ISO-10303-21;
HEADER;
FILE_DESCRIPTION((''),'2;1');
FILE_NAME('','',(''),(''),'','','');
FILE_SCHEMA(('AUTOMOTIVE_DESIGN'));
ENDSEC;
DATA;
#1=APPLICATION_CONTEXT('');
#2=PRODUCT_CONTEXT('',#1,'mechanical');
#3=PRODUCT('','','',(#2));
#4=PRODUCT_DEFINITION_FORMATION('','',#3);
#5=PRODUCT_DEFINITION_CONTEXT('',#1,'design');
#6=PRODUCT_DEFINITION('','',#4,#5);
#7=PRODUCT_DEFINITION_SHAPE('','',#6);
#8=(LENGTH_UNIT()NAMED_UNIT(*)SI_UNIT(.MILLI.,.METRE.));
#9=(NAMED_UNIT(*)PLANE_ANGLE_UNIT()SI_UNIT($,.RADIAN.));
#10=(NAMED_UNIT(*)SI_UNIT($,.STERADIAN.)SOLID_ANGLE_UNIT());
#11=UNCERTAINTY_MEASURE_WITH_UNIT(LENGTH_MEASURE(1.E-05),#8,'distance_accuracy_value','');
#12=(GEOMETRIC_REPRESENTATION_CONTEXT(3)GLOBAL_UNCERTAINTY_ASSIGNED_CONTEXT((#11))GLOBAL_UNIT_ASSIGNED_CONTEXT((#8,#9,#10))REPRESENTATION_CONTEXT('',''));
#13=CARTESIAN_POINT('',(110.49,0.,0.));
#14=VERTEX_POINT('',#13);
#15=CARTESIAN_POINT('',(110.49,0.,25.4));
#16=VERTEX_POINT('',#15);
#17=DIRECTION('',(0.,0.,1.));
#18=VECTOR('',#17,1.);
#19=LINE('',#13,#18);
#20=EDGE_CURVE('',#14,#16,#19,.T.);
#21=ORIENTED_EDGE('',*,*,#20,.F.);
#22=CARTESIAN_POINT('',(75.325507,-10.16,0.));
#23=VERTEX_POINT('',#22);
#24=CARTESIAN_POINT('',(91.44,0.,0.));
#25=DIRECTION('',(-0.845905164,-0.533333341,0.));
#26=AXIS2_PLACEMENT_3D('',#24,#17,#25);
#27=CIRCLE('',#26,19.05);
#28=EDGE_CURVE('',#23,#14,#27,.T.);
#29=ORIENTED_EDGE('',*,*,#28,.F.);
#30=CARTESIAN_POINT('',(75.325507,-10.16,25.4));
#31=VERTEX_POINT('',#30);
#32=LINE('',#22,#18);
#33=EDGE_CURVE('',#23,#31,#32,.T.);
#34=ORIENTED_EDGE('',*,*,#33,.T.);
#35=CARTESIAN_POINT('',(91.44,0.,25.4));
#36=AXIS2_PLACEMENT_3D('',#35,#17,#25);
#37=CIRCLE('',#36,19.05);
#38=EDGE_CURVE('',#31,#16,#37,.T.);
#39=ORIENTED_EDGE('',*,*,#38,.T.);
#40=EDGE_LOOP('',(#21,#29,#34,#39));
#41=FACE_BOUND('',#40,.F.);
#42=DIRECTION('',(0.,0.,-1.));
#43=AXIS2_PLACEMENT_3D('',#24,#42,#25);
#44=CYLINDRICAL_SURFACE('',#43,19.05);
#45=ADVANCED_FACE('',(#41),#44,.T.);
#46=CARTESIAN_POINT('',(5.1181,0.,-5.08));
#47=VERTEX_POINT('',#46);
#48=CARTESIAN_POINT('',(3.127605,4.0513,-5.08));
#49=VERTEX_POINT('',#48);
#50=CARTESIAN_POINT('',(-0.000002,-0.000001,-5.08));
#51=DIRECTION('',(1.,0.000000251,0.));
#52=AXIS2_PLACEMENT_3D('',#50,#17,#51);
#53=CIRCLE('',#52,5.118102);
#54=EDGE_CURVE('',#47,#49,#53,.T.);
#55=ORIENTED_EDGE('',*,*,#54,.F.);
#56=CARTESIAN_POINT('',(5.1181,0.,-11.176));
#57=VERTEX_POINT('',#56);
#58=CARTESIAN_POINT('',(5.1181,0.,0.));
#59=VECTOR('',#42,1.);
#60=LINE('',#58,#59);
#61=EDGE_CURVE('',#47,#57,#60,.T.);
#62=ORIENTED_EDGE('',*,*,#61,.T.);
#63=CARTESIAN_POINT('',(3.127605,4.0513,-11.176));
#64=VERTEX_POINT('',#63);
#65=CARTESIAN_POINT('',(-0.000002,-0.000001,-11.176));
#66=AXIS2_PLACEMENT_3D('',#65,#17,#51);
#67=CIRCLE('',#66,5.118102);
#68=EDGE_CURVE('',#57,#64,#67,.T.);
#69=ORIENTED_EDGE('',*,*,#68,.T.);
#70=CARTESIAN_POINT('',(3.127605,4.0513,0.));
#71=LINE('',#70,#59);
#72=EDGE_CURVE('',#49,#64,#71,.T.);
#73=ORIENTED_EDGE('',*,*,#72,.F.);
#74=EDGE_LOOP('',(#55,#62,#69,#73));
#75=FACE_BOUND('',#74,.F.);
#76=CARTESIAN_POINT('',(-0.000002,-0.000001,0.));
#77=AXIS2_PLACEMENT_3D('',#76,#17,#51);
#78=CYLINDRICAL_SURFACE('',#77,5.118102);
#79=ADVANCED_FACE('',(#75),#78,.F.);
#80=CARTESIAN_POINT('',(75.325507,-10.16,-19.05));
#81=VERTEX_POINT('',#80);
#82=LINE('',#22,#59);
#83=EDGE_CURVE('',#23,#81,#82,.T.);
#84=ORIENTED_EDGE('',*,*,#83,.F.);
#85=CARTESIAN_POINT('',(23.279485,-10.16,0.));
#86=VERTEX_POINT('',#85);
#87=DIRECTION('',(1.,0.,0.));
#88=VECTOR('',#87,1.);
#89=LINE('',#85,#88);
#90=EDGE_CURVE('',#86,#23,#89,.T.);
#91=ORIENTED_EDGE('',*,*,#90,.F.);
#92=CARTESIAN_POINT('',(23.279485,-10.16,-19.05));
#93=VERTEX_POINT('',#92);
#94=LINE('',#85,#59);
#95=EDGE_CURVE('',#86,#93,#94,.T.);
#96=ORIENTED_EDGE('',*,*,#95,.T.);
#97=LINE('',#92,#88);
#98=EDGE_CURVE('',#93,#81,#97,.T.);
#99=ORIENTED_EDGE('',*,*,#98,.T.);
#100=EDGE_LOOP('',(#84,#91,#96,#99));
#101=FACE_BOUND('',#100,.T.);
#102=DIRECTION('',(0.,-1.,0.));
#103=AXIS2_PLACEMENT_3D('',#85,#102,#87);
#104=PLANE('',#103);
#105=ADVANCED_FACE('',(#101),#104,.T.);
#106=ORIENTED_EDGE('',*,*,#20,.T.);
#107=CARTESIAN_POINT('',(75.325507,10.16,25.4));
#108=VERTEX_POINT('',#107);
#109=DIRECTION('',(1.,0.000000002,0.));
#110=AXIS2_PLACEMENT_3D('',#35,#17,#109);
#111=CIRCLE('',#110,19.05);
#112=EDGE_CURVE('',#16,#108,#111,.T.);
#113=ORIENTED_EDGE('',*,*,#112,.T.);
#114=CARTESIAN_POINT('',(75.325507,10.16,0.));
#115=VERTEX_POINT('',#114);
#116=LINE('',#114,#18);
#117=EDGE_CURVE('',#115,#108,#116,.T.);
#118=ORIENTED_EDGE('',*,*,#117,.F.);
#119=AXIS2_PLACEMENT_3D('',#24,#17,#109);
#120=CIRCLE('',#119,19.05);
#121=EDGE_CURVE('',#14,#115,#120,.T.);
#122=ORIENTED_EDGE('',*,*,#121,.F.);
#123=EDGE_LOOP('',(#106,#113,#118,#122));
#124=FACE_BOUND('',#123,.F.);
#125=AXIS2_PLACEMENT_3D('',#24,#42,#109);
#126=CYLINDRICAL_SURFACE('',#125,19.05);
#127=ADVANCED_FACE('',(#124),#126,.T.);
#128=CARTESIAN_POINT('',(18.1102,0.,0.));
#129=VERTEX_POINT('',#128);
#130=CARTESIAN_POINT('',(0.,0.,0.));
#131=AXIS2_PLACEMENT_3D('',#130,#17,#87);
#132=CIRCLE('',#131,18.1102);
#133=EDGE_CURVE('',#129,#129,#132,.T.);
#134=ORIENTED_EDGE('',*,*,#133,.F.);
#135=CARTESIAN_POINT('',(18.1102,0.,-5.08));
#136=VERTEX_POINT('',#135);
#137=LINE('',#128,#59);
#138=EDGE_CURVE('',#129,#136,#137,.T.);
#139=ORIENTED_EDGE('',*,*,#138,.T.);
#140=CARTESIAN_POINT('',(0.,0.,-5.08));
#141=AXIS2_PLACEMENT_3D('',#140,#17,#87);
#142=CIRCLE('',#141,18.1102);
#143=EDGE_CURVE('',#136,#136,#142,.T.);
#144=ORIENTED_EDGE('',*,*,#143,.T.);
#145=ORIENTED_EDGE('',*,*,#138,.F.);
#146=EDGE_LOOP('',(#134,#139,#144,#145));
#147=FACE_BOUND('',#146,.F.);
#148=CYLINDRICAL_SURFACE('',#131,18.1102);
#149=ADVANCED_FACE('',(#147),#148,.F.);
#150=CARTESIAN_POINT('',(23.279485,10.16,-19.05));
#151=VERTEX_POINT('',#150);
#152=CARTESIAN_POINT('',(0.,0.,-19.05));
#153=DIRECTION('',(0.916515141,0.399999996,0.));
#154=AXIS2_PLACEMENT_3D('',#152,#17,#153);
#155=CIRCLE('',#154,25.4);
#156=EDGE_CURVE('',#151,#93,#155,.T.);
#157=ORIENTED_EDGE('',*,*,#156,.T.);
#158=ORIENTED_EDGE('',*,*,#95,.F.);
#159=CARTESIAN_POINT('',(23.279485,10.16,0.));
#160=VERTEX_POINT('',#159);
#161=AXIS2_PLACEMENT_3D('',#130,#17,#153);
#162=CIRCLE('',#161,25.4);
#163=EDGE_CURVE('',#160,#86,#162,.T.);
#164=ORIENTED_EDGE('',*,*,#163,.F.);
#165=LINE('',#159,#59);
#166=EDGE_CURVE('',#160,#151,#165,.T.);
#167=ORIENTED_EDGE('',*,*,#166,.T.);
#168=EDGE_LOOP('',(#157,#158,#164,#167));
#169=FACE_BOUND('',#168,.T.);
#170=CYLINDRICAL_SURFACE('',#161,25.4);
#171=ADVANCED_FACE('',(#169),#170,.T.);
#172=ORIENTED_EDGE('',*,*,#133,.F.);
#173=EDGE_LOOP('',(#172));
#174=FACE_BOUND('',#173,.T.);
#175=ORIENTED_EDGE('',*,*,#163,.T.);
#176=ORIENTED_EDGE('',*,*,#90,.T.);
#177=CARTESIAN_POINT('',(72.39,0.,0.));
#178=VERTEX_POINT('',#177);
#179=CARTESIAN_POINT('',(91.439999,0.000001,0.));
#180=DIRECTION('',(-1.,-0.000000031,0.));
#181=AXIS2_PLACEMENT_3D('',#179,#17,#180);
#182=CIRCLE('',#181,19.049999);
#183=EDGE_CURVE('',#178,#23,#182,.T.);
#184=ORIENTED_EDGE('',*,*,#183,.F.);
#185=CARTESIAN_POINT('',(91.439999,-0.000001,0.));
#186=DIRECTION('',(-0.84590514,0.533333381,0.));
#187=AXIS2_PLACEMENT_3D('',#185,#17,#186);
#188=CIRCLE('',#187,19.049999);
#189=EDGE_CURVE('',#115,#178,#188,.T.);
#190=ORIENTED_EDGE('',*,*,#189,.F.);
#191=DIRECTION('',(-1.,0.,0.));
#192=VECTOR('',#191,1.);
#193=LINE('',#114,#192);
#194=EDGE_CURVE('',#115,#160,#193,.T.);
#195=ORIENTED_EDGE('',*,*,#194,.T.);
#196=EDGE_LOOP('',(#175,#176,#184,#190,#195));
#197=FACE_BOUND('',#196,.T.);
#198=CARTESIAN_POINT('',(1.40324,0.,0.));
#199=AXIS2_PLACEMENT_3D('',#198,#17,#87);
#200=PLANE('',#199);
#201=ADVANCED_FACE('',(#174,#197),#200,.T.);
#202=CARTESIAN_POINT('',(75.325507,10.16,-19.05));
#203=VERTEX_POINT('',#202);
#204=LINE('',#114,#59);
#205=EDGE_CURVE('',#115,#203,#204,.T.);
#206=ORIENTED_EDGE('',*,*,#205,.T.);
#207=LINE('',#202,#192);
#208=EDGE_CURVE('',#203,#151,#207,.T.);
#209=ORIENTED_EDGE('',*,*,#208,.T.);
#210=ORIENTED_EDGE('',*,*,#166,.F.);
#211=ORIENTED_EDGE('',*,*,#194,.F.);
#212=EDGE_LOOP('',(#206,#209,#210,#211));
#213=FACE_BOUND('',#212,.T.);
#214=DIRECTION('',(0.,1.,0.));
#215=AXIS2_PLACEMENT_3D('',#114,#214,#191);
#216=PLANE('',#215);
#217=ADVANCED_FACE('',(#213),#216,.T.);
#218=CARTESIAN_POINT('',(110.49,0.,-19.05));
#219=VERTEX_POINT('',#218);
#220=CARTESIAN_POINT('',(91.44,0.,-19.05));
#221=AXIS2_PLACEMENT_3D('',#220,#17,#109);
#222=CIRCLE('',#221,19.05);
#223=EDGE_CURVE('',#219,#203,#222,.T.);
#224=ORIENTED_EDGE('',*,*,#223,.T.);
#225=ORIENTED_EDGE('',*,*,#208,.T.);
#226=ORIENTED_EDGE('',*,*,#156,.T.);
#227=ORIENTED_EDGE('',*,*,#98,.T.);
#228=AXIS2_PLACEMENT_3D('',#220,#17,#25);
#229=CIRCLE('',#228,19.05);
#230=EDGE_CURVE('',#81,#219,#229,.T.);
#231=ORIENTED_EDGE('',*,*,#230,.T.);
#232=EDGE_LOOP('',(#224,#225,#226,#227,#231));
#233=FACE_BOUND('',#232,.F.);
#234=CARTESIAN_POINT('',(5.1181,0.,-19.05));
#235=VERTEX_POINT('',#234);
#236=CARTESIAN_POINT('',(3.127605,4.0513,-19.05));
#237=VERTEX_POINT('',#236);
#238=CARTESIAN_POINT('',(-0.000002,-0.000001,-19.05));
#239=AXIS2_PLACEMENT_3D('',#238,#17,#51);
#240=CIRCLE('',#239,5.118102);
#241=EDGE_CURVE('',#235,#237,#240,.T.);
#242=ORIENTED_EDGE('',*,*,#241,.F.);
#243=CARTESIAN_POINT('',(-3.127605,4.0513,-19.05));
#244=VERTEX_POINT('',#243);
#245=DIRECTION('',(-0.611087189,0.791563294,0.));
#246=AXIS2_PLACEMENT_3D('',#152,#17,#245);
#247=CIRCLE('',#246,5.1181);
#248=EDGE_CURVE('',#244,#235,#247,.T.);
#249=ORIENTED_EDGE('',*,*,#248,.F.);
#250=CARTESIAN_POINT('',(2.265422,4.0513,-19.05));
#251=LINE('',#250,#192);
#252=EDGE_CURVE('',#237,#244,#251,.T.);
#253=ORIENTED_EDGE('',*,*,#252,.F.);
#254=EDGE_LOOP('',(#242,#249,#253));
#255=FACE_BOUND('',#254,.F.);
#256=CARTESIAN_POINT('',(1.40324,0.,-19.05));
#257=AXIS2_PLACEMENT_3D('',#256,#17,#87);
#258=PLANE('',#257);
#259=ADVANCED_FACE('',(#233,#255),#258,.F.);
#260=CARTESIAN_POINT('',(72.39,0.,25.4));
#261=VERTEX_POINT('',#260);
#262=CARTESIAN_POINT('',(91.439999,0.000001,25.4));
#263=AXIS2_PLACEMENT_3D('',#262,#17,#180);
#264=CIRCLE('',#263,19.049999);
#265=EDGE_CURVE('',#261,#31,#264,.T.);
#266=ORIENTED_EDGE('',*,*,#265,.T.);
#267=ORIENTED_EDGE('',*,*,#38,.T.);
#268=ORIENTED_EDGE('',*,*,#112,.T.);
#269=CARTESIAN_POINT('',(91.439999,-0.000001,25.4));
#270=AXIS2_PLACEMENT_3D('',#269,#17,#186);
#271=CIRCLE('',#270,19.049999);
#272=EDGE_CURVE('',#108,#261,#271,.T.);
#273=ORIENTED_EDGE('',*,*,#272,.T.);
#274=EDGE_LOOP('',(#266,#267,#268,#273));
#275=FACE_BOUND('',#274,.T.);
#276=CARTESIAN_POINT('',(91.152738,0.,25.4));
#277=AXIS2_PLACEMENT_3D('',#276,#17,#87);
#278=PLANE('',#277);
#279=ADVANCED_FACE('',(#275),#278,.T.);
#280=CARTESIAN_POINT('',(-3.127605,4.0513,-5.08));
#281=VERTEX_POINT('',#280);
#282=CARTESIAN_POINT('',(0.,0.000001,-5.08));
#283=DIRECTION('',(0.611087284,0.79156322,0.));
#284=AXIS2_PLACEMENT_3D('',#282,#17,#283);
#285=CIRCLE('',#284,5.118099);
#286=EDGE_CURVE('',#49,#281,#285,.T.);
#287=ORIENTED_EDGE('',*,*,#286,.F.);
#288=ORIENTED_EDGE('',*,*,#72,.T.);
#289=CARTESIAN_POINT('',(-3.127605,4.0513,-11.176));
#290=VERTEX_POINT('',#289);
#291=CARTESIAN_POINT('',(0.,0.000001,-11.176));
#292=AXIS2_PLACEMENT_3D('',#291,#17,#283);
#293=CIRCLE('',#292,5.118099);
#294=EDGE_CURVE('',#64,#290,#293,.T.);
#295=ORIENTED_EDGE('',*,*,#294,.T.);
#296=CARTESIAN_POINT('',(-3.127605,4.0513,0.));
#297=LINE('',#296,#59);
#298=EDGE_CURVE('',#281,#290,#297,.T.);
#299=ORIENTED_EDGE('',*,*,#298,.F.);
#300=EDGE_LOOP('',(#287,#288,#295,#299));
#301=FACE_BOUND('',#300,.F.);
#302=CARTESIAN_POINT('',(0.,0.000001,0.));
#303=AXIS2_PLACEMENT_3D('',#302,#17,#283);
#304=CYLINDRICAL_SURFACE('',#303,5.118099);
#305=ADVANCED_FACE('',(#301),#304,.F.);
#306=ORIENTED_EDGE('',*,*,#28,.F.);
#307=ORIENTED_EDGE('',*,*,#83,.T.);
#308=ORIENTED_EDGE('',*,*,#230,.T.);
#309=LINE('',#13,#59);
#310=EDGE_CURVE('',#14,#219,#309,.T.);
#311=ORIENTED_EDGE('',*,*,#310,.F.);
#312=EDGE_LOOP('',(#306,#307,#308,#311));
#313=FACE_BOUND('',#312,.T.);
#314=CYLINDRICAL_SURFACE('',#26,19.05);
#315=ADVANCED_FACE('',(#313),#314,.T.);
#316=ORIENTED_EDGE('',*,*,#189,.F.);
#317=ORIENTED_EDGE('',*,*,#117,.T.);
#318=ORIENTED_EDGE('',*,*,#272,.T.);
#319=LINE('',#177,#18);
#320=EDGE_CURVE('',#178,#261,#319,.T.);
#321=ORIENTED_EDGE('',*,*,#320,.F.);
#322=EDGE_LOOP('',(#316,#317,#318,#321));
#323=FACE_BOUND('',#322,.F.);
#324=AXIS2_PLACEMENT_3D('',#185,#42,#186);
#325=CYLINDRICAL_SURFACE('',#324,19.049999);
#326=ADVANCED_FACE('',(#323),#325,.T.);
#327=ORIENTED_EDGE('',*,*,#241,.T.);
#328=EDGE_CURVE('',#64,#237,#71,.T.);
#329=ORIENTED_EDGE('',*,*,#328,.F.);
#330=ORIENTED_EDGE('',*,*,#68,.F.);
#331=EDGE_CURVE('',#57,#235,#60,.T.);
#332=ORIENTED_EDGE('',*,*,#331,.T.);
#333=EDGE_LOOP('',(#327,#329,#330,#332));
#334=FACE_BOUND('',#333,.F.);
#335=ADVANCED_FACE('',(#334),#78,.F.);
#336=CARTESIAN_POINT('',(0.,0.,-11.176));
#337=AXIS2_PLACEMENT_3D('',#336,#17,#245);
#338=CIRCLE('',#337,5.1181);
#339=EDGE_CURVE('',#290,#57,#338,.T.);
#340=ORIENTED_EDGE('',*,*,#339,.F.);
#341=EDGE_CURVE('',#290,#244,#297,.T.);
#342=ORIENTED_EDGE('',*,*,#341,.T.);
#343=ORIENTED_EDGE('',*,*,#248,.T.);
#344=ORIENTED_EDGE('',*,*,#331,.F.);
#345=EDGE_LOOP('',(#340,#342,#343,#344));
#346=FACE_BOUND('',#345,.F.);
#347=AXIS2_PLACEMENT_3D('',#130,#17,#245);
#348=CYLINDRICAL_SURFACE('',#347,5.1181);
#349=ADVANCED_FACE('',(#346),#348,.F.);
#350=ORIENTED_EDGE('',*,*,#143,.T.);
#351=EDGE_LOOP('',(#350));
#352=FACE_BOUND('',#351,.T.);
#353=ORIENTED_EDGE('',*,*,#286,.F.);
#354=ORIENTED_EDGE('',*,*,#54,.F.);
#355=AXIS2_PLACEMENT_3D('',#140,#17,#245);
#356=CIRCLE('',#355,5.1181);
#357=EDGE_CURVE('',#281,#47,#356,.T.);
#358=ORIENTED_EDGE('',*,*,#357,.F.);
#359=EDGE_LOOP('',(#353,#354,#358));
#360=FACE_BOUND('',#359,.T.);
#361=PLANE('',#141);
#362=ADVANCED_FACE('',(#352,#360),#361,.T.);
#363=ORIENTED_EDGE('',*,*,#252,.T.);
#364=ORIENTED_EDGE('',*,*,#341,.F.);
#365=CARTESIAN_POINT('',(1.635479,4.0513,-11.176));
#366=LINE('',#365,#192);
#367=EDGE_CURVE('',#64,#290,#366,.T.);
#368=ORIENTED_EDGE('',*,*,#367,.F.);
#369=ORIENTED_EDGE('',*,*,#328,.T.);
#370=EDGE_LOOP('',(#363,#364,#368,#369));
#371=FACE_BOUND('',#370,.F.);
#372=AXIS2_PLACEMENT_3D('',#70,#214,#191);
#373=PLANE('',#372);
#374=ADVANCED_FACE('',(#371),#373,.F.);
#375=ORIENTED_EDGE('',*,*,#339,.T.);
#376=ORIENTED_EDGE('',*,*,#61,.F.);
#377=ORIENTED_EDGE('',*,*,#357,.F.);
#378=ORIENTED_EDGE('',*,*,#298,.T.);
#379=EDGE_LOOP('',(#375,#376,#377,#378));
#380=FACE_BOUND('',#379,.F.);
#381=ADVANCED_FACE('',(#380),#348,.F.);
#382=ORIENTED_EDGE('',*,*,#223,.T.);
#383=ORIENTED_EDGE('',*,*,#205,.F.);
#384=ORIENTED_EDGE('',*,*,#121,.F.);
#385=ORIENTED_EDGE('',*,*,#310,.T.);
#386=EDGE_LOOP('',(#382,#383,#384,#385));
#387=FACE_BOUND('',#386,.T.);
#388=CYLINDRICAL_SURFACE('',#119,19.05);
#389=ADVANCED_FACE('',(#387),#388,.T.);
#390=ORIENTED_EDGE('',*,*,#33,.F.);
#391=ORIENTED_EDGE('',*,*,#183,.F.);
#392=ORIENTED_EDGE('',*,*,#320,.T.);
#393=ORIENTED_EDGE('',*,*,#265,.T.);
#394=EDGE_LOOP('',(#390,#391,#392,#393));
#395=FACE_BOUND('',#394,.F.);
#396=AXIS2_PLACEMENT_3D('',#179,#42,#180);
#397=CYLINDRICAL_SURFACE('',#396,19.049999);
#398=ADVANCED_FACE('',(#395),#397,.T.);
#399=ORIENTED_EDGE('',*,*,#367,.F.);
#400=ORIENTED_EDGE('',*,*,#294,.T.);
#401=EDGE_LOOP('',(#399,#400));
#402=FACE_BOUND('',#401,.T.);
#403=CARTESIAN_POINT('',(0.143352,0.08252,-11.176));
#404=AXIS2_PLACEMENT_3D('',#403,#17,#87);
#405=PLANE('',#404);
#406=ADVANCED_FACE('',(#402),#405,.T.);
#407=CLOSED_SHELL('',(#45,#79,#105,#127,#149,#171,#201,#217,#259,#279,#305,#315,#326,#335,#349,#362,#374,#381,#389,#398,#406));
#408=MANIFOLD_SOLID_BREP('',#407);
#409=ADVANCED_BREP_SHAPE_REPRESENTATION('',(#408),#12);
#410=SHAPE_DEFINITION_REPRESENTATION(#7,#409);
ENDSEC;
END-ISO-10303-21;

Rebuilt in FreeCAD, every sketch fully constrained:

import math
import FreeCAD as App
import Part
import Sketcher

V = App.Vector
Q = App.Units.Quantity

doc = App.newDocument("Part")
body = doc.addObject("PartDesign::Body", "Body")

sketch1 = body.newObject("Sketcher::SketchObject", "Sketch")
sketch1.AttachmentSupport = (doc.getObject("XY_Plane"), [""])
sketch1.MapMode = "FlatFace"
sketch1.addGeometry([
    Part.ArcOfCircle(Part.Circle(V(0, 0, 0), V(0, 0, 1), 25.4), math.radians(23.578178), math.radians(336.421822)),
    Part.LineSegment(V(23.279485, -10.16, 0), V(75.325507, -10.16, 0)),
    Part.ArcOfCircle(Part.Circle(V(91.44, 0, 0), V(0, 0, 1), 19.05), math.radians(-147.769047), math.radians(0)),
    Part.ArcOfCircle(Part.Circle(V(91.44, 0, 0), V(0, 0, 1), 19.05), math.radians(0), math.radians(147.769047)),
    Part.LineSegment(V(75.325507, 10.16, 0), V(23.279485, 10.16, 0)),
], False)
sketch1.addConstraint([
    Sketcher.Constraint("Coincident", 0, 2, 1, 1),
    Sketcher.Constraint("Coincident", 1, 2, 2, 1),
    Sketcher.Constraint("Tangent", 2, 2, 3, 1),
    Sketcher.Constraint("Coincident", 3, 2, 4, 1),
    Sketcher.Constraint("Coincident", 4, 2, 0, 1),
    Sketcher.Constraint("Horizontal", 1),
    Sketcher.Constraint("Horizontal", 4),
    Sketcher.Constraint("Coincident", 0, 3, -1, 1),
    Sketcher.Constraint("Equal", 2, 3),
    Sketcher.Constraint("Symmetric", 1, 2, 3, 2, -1),
    Sketcher.Constraint("PointOnObject", 2, 2, -1),
    Sketcher.Constraint("Radius", 0, Q("1 in")),
    Sketcher.Constraint("Radius", 2, Q("0.75 in")),
    Sketcher.Constraint("DistanceX", -1, 1, 2, 3, Q("3.6 in")),
    Sketcher.Constraint("DistanceY", 0, 2, -1, 1, Q("0.4 in")),
])
pad1 = body.newObject("PartDesign::Pad", "Pad")
pad1.Profile = sketch1
pad1.Length = Q("0.75 in")
pad1.Reversed = True

sketch2 = body.newObject("Sketcher::SketchObject", "Sketch001")
sketch2.AttachmentSupport = (doc.getObject("XY_Plane"), [""])
sketch2.MapMode = "FlatFace"
sketch2.addGeometry([
    Part.ArcOfCircle(Part.Circle(V(91.439999, -0.000001, 0), V(0, 0, 1), 19.049999), math.radians(147.769044), math.radians(179.999998)),
    Part.ArcOfCircle(Part.Circle(V(91.439999, 0.000001, 0), V(0, 0, 1), 19.049999), math.radians(-179.999998), math.radians(-147.769044)),
    Part.ArcOfCircle(Part.Circle(V(91.44, 0, 0), V(0, 0, 1), 19.05), math.radians(-147.769047), math.radians(0)),
    Part.ArcOfCircle(Part.Circle(V(91.44, 0, 0), V(0, 0, 1), 19.05), math.radians(0), math.radians(147.769047)),
], False)
sketch2.addConstraint([
    Sketcher.Constraint("Tangent", 0, 2, 1, 1),
    Sketcher.Constraint("Tangent", 1, 2, 2, 1),
    Sketcher.Constraint("Tangent", 2, 2, 3, 1),
    Sketcher.Constraint("Tangent", 3, 2, 0, 1),
    Sketcher.Constraint("Equal", 0, 1),
    Sketcher.Constraint("Symmetric", 1, 2, 3, 2, -1),
    Sketcher.Constraint("PointOnObject", 0, 2, -1),
    Sketcher.Constraint("PointOnObject", 2, 2, -1),
    Sketcher.Constraint("Radius", 0, Q("0.75 in")),
    Sketcher.Constraint("DistanceX", -1, 1, 0, 3, Q("3.6 in")),
    Sketcher.Constraint("DistanceY", 1, 2, -1, 1, Q("0.4 in")),
])
pad2 = body.newObject("PartDesign::Pad", "Pad001")
pad2.Profile = sketch2
pad2.Length = Q("1 in")

sketch3 = body.newObject("Sketcher::SketchObject", "Sketch002")
sketch3.AttachmentSupport = (doc.getObject("XY_Plane"), [""])
sketch3.MapMode = "FlatFace"
sketch3.addGeometry(Part.Circle(V(0, 0, 0), V(0, 0, 1), 18.1102), False)
sketch3.addConstraint([
    Sketcher.Constraint("Coincident", 0, 3, -1, 1),
    Sketcher.Constraint("Diameter", 0, Q("1.426 in")),
])
pocket1 = body.newObject("PartDesign::Pocket", "Pocket")
pocket1.Profile = sketch3
pocket1.Length = Q("0.2 in")

sketch4 = body.newObject("Sketcher::SketchObject", "Sketch003")
sketch4.AttachmentSupport = (doc.getObject("XY_Plane"), [""])
sketch4.MapMode = "FlatFace"
sketch4.addGeometry([
    Part.ArcOfCircle(Part.Circle(V(0, 0, 0), V(0, 0, 1), 5.1181), math.radians(127.668155), math.radians(359.999999)),
    Part.ArcOfCircle(Part.Circle(V(-0.000002, -0.000001, 0), V(0, 0, 1), 5.118102), math.radians(0.000014), math.radians(52.331839)),
    Part.ArcOfCircle(Part.Circle(V(0, 0.000001, 0), V(0, 0, 1), 5.118099), math.radians(52.331838), math.radians(127.668162)),
], False)
sketch4.addConstraint([
    Sketcher.Constraint("Tangent", 0, 2, 1, 1),
    Sketcher.Constraint("Tangent", 1, 2, 2, 1),
    Sketcher.Constraint("Tangent", 2, 2, 0, 1),
    Sketcher.Constraint("Coincident", 0, 3, -1, 1),
    Sketcher.Constraint("PointOnObject", 0, 2, -1),
    Sketcher.Constraint("Horizontal", 1, 2, 2, 2),
    Sketcher.Constraint("Radius", 0, Q("0.2015 in")),
    Sketcher.Constraint("DistanceY", -1, 1, 1, 2, Q("0.1595 in")),
])
pocket2 = body.newObject("PartDesign::Pocket", "Pocket001")
pocket2.Profile = sketch4
pocket2.Length = Q("0.44 in")

sketch5 = body.newObject("Sketcher::SketchObject", "Sketch004")
sketch5.AttachmentSupport = (doc.getObject("XY_Plane"), [""])
sketch5.MapMode = "FlatFace"
sketch5.addGeometry([
    Part.ArcOfCircle(Part.Circle(V(0, 0, 0), V(0, 0, 1), 5.1181), math.radians(127.668155), math.radians(359.999999)),
    Part.ArcOfCircle(Part.Circle(V(-0.000002, -0.000001, 0), V(0, 0, 1), 5.118102), math.radians(0.000014), math.radians(52.331839)),
    Part.LineSegment(V(3.127605, 4.0513, 0), V(-3.127605, 4.0513, 0)),
], False)
sketch5.addConstraint([
    Sketcher.Constraint("Tangent", 0, 2, 1, 1),
    Sketcher.Constraint("Coincident", 1, 2, 2, 1),
    Sketcher.Constraint("Coincident", 2, 2, 0, 1),
    Sketcher.Constraint("Horizontal", 2),
    Sketcher.Constraint("Coincident", 0, 3, -1, 1),
    Sketcher.Constraint("PointOnObject", 0, 2, -1),
    Sketcher.Constraint("Radius", 0, Q("0.2015 in")),
    Sketcher.Constraint("Radius", 1, Q("0.2015001 in")),
    Sketcher.Constraint("DistanceY", -1, 1, 1, 2, Q("0.1595 in")),
])
pocket3 = body.newObject("PartDesign::Pocket", "Pocket002")
pocket3.Profile = sketch5
pocket3.Length = Q("0.8 in")

doc.recompute()
